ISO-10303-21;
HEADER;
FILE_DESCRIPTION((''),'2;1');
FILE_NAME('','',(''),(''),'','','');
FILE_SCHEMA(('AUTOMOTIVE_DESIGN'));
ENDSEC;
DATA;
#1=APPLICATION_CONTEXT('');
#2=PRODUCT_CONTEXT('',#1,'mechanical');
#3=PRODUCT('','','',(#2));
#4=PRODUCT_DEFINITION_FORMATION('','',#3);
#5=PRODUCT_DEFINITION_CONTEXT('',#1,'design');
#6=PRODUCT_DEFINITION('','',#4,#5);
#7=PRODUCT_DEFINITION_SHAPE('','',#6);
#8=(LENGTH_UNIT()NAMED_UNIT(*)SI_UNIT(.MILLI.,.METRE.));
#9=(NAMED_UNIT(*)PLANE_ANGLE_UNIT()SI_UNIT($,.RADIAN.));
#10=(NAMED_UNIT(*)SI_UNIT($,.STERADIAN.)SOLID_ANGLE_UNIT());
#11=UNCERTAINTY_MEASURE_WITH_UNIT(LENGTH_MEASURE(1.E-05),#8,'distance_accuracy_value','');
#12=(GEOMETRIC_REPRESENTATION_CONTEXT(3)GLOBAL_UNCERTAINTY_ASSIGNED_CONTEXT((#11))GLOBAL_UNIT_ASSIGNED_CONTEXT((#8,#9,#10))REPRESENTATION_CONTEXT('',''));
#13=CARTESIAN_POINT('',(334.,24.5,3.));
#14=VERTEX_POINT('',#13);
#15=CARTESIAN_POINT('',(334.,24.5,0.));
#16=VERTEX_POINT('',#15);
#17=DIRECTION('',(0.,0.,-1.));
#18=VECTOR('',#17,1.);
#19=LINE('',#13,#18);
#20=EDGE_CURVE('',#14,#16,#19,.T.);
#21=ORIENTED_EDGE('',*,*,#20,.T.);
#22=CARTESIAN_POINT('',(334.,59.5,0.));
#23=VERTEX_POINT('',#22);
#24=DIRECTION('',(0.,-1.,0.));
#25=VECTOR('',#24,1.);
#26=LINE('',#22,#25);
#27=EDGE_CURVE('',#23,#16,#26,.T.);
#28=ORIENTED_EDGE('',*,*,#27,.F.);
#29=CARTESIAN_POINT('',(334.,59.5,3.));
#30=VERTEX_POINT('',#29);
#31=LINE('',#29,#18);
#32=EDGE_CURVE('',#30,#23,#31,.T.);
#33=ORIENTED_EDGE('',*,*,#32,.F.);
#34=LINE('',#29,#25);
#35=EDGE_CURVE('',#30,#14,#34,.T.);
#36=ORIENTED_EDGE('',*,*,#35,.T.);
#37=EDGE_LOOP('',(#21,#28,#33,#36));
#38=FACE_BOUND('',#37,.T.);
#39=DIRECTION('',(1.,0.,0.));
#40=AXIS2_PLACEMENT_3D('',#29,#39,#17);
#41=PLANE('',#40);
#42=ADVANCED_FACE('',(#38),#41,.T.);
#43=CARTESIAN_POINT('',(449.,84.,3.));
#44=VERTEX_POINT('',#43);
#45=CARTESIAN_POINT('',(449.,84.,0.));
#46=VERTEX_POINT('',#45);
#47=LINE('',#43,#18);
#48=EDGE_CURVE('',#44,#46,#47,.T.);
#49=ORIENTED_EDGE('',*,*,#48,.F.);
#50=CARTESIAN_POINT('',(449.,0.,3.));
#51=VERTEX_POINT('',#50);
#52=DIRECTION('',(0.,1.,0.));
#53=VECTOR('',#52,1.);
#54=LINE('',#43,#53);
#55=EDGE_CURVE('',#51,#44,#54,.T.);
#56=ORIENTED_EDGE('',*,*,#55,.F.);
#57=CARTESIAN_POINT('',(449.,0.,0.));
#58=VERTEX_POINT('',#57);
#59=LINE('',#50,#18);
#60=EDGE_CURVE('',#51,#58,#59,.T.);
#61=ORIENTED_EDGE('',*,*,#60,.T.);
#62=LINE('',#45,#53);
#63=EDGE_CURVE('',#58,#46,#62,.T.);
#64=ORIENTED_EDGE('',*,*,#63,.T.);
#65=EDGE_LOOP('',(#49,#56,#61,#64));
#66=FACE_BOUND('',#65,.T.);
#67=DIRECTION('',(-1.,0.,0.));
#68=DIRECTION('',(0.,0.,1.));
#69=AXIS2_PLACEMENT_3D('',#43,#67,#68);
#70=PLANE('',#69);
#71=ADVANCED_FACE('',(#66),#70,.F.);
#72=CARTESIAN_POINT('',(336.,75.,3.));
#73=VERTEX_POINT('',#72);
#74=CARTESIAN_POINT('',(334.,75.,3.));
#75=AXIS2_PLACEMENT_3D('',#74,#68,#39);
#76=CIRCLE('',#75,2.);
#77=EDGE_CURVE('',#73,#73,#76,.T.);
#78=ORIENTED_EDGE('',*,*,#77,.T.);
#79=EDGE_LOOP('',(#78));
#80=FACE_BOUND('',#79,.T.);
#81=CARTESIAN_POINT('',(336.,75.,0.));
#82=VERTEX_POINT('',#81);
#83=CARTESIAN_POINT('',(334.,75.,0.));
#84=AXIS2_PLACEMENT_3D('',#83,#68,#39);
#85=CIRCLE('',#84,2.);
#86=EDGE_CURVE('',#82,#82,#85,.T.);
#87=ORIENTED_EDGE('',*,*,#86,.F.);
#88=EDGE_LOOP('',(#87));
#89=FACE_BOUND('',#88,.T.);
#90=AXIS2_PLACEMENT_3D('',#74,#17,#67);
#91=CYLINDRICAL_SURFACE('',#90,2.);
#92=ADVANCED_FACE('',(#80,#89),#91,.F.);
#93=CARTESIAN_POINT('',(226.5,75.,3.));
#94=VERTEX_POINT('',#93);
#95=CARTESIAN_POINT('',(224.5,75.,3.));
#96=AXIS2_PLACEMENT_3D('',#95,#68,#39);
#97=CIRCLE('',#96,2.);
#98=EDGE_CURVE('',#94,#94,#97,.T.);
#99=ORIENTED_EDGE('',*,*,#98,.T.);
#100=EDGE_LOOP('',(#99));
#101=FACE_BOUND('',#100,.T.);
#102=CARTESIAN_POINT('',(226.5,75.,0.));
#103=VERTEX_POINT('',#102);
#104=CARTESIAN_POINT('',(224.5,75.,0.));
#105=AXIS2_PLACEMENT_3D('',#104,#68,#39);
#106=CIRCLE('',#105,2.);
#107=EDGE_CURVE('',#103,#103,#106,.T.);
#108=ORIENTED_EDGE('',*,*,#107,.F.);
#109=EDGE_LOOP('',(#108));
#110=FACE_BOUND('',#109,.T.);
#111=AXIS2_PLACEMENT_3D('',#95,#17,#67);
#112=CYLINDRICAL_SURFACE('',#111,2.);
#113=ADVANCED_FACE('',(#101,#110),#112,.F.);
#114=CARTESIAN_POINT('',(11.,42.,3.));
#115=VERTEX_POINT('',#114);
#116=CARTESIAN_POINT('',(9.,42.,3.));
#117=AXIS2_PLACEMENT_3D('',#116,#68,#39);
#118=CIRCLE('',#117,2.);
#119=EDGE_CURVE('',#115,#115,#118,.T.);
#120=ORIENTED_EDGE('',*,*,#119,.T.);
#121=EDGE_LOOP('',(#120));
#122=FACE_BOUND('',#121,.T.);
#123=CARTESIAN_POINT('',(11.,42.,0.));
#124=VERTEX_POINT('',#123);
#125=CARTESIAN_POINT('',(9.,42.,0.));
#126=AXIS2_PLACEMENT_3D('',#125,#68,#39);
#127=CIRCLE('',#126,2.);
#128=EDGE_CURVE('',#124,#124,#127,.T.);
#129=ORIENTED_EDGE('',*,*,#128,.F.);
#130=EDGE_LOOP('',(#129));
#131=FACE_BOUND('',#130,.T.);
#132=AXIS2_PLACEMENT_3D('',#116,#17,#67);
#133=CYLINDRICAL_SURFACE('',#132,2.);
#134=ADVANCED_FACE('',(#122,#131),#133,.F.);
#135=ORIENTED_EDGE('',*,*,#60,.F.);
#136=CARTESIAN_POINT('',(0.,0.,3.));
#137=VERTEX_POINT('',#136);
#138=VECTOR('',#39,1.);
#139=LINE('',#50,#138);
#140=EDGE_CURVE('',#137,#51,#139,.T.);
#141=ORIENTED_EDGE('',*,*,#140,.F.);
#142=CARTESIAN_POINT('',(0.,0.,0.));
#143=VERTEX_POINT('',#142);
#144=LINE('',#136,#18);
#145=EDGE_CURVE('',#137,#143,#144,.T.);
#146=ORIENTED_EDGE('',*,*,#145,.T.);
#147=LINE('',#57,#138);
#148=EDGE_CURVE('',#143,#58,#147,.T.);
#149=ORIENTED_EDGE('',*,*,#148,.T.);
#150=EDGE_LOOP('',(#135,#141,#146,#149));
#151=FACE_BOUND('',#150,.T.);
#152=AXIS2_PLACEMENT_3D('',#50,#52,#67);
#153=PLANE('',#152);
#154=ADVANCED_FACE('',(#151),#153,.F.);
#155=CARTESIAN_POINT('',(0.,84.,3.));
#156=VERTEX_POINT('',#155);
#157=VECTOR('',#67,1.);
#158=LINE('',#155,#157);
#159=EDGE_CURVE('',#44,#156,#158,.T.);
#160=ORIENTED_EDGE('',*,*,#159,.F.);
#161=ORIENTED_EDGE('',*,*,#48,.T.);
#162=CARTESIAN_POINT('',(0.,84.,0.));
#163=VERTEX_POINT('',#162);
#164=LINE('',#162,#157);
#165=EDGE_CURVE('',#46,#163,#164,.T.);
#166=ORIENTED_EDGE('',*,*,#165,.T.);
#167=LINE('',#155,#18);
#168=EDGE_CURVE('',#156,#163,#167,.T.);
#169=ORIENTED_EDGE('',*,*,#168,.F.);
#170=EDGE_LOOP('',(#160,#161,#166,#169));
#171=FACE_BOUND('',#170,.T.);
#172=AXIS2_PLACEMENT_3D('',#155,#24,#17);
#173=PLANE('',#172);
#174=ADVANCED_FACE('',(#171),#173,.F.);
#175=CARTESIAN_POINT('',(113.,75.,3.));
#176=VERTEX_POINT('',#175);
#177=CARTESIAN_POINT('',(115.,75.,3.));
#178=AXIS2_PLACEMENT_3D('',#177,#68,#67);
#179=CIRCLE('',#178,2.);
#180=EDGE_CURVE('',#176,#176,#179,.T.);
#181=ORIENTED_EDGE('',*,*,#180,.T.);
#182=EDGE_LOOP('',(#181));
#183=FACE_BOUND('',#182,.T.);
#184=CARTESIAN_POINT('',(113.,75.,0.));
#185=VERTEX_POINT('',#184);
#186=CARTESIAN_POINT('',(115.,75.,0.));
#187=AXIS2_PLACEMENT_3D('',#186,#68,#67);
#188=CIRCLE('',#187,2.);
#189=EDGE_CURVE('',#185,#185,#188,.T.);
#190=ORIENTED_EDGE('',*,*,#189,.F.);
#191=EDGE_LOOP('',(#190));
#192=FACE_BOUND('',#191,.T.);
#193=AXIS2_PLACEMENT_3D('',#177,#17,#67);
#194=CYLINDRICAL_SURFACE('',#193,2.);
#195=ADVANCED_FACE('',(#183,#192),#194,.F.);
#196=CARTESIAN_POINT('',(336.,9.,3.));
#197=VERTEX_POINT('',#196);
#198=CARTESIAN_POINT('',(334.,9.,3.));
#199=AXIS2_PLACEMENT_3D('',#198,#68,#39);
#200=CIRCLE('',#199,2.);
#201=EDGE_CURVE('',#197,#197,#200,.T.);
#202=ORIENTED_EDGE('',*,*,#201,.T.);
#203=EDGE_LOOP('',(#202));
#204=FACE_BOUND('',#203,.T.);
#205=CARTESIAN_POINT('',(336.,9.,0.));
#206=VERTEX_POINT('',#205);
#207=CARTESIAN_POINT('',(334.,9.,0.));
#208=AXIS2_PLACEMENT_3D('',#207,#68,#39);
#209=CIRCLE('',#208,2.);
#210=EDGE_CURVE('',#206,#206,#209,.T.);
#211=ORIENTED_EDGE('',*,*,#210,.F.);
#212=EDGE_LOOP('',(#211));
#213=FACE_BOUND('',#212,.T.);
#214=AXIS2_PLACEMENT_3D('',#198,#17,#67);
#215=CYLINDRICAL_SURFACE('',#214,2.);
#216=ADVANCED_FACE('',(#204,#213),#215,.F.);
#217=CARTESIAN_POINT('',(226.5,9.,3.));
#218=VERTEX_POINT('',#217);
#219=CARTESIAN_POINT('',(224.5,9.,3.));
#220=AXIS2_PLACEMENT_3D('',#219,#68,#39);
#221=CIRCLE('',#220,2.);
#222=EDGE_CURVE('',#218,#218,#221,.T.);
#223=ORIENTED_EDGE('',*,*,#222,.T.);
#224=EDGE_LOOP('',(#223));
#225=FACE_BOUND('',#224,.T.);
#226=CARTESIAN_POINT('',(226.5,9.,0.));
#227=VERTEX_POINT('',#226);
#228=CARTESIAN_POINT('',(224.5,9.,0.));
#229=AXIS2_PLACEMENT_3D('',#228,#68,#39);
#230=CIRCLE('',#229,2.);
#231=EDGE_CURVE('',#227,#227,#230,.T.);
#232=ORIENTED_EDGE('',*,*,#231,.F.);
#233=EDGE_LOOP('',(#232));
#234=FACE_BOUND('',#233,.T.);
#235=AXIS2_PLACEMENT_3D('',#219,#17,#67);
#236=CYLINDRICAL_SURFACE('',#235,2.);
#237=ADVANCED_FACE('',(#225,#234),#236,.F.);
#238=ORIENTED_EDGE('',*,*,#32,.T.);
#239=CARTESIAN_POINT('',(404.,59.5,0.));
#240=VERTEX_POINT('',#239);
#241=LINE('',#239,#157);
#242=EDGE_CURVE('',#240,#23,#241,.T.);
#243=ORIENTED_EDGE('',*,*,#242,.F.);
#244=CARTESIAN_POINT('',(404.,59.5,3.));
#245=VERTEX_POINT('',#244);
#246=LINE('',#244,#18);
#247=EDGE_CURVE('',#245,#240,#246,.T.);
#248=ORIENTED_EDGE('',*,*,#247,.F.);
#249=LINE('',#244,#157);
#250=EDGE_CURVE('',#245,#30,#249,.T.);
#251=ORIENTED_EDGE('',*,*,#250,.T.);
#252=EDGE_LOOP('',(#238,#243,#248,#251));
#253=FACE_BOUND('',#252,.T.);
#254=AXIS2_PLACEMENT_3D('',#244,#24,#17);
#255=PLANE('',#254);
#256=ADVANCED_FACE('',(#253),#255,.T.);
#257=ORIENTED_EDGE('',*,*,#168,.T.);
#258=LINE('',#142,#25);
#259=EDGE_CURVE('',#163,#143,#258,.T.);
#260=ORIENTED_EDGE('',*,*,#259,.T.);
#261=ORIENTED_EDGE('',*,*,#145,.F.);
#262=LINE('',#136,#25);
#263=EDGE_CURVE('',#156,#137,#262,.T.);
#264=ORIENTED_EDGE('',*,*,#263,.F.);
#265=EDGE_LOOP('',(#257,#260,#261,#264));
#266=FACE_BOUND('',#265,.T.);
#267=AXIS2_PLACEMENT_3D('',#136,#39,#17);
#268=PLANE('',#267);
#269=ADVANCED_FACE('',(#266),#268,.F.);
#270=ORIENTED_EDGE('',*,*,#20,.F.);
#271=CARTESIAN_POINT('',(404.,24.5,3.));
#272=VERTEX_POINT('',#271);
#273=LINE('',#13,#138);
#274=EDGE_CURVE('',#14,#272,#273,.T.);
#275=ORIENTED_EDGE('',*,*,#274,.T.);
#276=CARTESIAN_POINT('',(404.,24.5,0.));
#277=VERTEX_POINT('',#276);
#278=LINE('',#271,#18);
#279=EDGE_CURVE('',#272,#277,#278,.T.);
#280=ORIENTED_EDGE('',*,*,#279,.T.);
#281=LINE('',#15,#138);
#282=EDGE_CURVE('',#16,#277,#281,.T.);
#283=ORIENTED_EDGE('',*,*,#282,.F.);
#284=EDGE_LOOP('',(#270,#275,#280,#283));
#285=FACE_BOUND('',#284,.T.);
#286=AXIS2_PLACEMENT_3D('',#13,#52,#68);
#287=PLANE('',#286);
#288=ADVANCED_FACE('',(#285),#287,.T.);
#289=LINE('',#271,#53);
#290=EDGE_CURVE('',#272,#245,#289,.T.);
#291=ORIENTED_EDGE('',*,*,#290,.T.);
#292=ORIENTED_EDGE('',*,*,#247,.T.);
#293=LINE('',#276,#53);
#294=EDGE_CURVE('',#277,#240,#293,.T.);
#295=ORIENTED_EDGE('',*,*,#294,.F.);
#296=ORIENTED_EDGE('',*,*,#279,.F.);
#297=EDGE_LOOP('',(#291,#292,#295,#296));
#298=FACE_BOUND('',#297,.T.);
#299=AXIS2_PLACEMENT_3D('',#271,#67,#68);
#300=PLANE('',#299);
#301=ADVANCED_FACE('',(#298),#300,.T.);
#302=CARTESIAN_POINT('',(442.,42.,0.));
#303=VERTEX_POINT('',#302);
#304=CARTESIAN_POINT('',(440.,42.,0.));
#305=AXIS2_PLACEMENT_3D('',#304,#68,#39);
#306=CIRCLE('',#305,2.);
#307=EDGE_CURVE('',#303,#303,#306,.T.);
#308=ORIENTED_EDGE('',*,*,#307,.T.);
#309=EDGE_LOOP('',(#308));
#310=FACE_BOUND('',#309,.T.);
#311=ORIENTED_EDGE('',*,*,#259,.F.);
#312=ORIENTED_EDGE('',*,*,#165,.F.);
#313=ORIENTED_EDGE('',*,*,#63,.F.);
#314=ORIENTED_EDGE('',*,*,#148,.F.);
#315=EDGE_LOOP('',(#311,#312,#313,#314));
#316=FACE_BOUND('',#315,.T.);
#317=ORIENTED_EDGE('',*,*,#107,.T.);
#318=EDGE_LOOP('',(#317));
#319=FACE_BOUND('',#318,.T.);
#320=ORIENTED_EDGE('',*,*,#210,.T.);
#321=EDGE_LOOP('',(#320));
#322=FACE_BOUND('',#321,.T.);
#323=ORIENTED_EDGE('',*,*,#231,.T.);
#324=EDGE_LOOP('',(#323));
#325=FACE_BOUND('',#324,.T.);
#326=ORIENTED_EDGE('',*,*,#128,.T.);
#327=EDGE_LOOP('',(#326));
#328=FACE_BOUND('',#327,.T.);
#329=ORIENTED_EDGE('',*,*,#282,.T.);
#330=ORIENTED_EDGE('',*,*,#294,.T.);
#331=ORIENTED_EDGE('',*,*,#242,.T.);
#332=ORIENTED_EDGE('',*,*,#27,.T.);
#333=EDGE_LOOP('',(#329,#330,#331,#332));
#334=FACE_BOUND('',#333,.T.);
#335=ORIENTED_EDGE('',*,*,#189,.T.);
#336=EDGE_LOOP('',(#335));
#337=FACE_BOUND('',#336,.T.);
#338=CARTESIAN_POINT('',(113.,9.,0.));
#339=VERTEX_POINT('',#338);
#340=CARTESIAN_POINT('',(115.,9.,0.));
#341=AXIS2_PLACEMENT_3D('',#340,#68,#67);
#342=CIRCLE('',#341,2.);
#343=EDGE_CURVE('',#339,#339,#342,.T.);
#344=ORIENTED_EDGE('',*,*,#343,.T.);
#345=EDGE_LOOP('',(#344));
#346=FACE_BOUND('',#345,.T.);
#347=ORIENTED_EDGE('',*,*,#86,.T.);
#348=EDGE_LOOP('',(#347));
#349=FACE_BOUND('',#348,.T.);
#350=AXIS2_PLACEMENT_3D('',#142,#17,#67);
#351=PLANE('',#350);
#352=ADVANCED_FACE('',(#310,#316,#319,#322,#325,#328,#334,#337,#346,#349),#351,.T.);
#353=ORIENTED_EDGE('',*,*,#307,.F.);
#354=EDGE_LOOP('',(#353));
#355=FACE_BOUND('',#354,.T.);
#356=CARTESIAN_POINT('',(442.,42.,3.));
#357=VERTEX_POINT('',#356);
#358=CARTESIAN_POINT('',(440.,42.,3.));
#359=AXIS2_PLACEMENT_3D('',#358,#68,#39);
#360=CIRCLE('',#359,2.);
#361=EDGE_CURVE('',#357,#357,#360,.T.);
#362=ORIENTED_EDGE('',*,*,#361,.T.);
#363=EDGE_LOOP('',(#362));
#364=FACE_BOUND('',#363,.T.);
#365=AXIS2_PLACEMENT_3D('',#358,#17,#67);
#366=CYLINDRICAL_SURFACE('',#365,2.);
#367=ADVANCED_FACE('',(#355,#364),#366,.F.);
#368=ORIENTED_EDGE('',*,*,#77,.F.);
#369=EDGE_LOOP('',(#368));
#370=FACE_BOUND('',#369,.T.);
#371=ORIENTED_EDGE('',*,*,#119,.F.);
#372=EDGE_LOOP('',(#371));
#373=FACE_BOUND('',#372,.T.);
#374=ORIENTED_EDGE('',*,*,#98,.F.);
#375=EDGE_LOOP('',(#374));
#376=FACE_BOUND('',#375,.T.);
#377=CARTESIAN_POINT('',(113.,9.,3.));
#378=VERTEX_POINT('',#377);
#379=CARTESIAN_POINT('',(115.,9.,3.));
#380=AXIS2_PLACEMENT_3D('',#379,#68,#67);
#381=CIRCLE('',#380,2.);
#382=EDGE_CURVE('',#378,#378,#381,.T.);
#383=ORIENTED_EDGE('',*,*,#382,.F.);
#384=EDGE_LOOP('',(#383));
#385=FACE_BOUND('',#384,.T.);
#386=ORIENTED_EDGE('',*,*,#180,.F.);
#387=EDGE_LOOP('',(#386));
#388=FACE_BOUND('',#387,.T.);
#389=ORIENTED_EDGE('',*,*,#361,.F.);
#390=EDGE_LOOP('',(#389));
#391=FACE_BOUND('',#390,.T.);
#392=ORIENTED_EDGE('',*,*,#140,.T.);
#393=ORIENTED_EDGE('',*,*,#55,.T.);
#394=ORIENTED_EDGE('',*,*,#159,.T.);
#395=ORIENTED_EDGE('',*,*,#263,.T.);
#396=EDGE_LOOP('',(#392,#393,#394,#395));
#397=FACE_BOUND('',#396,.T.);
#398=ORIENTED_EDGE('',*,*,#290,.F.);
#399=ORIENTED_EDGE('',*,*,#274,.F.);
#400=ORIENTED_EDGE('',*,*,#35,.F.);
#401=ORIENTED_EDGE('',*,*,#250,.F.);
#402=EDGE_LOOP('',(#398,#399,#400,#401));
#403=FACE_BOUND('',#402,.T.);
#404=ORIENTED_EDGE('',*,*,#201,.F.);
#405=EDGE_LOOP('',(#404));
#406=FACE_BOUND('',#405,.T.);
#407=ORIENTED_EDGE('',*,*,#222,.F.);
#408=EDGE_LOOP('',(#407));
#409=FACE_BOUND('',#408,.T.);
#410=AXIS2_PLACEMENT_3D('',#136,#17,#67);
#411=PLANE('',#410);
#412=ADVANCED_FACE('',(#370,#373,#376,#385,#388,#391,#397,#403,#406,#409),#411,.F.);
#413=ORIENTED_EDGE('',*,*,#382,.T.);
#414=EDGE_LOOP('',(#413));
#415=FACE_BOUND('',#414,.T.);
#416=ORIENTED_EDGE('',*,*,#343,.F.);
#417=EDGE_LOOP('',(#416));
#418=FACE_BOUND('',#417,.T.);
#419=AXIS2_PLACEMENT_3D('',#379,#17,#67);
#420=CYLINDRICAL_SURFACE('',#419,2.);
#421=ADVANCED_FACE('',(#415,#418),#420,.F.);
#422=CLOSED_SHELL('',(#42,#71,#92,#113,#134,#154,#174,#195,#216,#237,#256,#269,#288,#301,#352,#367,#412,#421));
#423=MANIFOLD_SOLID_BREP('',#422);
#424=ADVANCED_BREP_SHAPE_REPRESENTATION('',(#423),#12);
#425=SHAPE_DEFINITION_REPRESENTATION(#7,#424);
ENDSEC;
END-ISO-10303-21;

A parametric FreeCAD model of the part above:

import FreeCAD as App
import Part
import Sketcher


def add_polygon(sketch, points):
    """Adds a closed chain of lines whose ends are joined by coincident constraints."""
    first, n = sketch.GeometryCount, len(points)
    for a, b in zip(points, points[1:] + points[:1]):
        sketch.addGeometry(Part.LineSegment(App.Vector(*a, 0), App.Vector(*b, 0)), False)
    for i in range(n):
        sketch.addConstraint(Sketcher.Constraint("Coincident", first + i, 2, first + (i + 1) % n, 1))

doc = App.newDocument("Part")
params = doc.addObject("Spreadsheet::Sheet", "Params")
for row, (alias, value) in enumerate([
    ("sketch1_diameter", "4 mm"),
    ("sketch1_width", "449 mm"),
    ("sketch1_width2", "70 mm"),
    ("sketch1_height", "84 mm"),
    ("sketch1_height2", "35 mm"),
    ("pad1_length", "3 mm"),
], start=1):
    params.set(f"A{row}", alias)
    params.set(f"B{row}", "=" + value)
    params.setAlias(f"B{row}", alias)

body = doc.addObject("PartDesign::Body", "Body")

# Sketch on XY plane
sketch1 = body.newObject("Sketcher::SketchObject", "Sketch")
sketch1.AttachmentSupport = (doc.getObject("XY_Plane"), [""])
sketch1.MapMode = "FlatFace"
add_polygon(sketch1, [(0, 84), (0, 0), (449, 0), (449, 84)])  # lines 0-3
sketch1.addGeometry(Part.Circle(App.Vector(115, 9, 0), App.Vector(0, 0, 1), 2), False)  # 4
sketch1.addGeometry(Part.Circle(App.Vector(224.5, 9, 0), App.Vector(0, 0, 1), 2), False)  # 5
sketch1.addGeometry(Part.Circle(App.Vector(334, 9, 0), App.Vector(0, 0, 1), 2), False)  # 6
sketch1.addGeometry(Part.Circle(App.Vector(9, 42, 0), App.Vector(0, 0, 1), 2), False)  # 7
sketch1.addGeometry(Part.Circle(App.Vector(115, 75, 0), App.Vector(0, 0, 1), 2), False)  # 8
add_polygon(sketch1, [(404, 24.5), (334, 24.5), (334, 59.5), (404, 59.5)])  # lines 9-12
sketch1.addGeometry(Part.Circle(App.Vector(440, 42, 0), App.Vector(0, 0, 1), 2), False)  # 13
sketch1.addGeometry(Part.Circle(App.Vector(224.5, 75, 0), App.Vector(0, 0, 1), 2), False)  # 14
sketch1.addGeometry(Part.Circle(App.Vector(334, 75, 0), App.Vector(0, 0, 1), 2), False)  # 15
sketch1.addConstraint(Sketcher.Constraint("Vertical", 0))
sketch1.addConstraint(Sketcher.Constraint("Horizontal", 1))
sketch1.addConstraint(Sketcher.Constraint("Vertical", 2))
sketch1.addConstraint(Sketcher.Constraint("Horizontal", 3))
sketch1.addConstraint(Sketcher.Constraint("Horizontal", 9))
sketch1.addConstraint(Sketcher.Constraint("Vertical", 10))
sketch1.addConstraint(Sketcher.Constraint("Horizontal", 11))
sketch1.addConstraint(Sketcher.Constraint("Vertical", 12))
sketch1.addConstraint(Sketcher.Constraint("Coincident", 0, 2, -1, 1))
sketch1.addConstraint(Sketcher.Constraint("Equal", 4, 5))
sketch1.addConstraint(Sketcher.Constraint("Equal", 5, 6))
sketch1.addConstraint(Sketcher.Constraint("Equal", 6, 7))
sketch1.addConstraint(Sketcher.Constraint("Equal", 7, 8))
sketch1.addConstraint(Sketcher.Constraint("Equal", 8, 13))
sketch1.addConstraint(Sketcher.Constraint("Equal", 13, 14))
sketch1.addConstraint(Sketcher.Constraint("Equal", 14, 15))
sketch1.addConstraint(Sketcher.Constraint("Horizontal", 4, 3, 5, 3))
sketch1.addConstraint(Sketcher.Constraint("Horizontal", 5, 3, 6, 3))
sketch1.addConstraint(Sketcher.Constraint("Horizontal", 7, 3, 13, 3))
sketch1.addConstraint(Sketcher.Constraint("Horizontal", 8, 3, 14, 3))
sketch1.addConstraint(Sketcher.Constraint("Horizontal", 14, 3, 15, 3))
sketch1.addConstraint(Sketcher.Constraint("Vertical", 4, 3, 8, 3))
sketch1.addConstraint(Sketcher.Constraint("Vertical", 5, 3, 14, 3))
sketch1.addConstraint(Sketcher.Constraint("Vertical", 6, 3, 15, 3))
sketch1.addConstraint(Sketcher.Constraint("Vertical", 15, 3, 9, 2))
sketch1.addConstraint(Sketcher.Constraint("Diameter", 4, 4.0))
sketch1.addConstraint(Sketcher.Constraint("DistanceX", 1, 1, 1, 2, 449.0))
sketch1.addConstraint(Sketcher.Constraint("DistanceX", 9, 2, 9, 1, 70.0))
sketch1.addConstraint(Sketcher.Constraint("DistanceY", 0, 2, 0, 1, 84.0))
sketch1.addConstraint(Sketcher.Constraint("DistanceY", 10, 1, 10, 2, 35.0))
sketch1.addConstraint(Sketcher.Constraint("DistanceX", -1, 1, 4, 3, 115.0))
sketch1.addConstraint(Sketcher.Constraint("DistanceY", -1, 1, 4, 3, 9.0))
sketch1.addConstraint(Sketcher.Constraint("DistanceX", -1, 1, 6, 3, 334.0))
sketch1.addConstraint(Sketcher.Constraint("DistanceX", -1, 1, 7, 3, 9.0))
sketch1.addConstraint(Sketcher.Constraint("DistanceY", -1, 1, 7, 3, 42.0))
sketch1.addConstraint(Sketcher.Constraint("DistanceY", -1, 1, 8, 3, 75.0))
sketch1.addConstraint(Sketcher.Constraint("DistanceX", -1, 1, 13, 3, 440.0))
sketch1.addConstraint(Sketcher.Constraint("DistanceX", -1, 1, 5, 3, 224.5))
sketch1.addConstraint(Sketcher.Constraint("DistanceY", -1, 1, 9, 2, 24.5))
sketch1.setExpression("Constraints[33]", "Params.sketch1_diameter")
sketch1.setExpression("Constraints[34]", "Params.sketch1_width")
sketch1.setExpression("Constraints[35]", "Params.sketch1_width2")
sketch1.setExpression("Constraints[36]", "Params.sketch1_height")
sketch1.setExpression("Constraints[37]", "Params.sketch1_height2")
pad1 = body.newObject("PartDesign::Pad", "Pad")
pad1.Profile = sketch1
pad1.setExpression("Length", "Params.pad1_length")

doc.recompute()
